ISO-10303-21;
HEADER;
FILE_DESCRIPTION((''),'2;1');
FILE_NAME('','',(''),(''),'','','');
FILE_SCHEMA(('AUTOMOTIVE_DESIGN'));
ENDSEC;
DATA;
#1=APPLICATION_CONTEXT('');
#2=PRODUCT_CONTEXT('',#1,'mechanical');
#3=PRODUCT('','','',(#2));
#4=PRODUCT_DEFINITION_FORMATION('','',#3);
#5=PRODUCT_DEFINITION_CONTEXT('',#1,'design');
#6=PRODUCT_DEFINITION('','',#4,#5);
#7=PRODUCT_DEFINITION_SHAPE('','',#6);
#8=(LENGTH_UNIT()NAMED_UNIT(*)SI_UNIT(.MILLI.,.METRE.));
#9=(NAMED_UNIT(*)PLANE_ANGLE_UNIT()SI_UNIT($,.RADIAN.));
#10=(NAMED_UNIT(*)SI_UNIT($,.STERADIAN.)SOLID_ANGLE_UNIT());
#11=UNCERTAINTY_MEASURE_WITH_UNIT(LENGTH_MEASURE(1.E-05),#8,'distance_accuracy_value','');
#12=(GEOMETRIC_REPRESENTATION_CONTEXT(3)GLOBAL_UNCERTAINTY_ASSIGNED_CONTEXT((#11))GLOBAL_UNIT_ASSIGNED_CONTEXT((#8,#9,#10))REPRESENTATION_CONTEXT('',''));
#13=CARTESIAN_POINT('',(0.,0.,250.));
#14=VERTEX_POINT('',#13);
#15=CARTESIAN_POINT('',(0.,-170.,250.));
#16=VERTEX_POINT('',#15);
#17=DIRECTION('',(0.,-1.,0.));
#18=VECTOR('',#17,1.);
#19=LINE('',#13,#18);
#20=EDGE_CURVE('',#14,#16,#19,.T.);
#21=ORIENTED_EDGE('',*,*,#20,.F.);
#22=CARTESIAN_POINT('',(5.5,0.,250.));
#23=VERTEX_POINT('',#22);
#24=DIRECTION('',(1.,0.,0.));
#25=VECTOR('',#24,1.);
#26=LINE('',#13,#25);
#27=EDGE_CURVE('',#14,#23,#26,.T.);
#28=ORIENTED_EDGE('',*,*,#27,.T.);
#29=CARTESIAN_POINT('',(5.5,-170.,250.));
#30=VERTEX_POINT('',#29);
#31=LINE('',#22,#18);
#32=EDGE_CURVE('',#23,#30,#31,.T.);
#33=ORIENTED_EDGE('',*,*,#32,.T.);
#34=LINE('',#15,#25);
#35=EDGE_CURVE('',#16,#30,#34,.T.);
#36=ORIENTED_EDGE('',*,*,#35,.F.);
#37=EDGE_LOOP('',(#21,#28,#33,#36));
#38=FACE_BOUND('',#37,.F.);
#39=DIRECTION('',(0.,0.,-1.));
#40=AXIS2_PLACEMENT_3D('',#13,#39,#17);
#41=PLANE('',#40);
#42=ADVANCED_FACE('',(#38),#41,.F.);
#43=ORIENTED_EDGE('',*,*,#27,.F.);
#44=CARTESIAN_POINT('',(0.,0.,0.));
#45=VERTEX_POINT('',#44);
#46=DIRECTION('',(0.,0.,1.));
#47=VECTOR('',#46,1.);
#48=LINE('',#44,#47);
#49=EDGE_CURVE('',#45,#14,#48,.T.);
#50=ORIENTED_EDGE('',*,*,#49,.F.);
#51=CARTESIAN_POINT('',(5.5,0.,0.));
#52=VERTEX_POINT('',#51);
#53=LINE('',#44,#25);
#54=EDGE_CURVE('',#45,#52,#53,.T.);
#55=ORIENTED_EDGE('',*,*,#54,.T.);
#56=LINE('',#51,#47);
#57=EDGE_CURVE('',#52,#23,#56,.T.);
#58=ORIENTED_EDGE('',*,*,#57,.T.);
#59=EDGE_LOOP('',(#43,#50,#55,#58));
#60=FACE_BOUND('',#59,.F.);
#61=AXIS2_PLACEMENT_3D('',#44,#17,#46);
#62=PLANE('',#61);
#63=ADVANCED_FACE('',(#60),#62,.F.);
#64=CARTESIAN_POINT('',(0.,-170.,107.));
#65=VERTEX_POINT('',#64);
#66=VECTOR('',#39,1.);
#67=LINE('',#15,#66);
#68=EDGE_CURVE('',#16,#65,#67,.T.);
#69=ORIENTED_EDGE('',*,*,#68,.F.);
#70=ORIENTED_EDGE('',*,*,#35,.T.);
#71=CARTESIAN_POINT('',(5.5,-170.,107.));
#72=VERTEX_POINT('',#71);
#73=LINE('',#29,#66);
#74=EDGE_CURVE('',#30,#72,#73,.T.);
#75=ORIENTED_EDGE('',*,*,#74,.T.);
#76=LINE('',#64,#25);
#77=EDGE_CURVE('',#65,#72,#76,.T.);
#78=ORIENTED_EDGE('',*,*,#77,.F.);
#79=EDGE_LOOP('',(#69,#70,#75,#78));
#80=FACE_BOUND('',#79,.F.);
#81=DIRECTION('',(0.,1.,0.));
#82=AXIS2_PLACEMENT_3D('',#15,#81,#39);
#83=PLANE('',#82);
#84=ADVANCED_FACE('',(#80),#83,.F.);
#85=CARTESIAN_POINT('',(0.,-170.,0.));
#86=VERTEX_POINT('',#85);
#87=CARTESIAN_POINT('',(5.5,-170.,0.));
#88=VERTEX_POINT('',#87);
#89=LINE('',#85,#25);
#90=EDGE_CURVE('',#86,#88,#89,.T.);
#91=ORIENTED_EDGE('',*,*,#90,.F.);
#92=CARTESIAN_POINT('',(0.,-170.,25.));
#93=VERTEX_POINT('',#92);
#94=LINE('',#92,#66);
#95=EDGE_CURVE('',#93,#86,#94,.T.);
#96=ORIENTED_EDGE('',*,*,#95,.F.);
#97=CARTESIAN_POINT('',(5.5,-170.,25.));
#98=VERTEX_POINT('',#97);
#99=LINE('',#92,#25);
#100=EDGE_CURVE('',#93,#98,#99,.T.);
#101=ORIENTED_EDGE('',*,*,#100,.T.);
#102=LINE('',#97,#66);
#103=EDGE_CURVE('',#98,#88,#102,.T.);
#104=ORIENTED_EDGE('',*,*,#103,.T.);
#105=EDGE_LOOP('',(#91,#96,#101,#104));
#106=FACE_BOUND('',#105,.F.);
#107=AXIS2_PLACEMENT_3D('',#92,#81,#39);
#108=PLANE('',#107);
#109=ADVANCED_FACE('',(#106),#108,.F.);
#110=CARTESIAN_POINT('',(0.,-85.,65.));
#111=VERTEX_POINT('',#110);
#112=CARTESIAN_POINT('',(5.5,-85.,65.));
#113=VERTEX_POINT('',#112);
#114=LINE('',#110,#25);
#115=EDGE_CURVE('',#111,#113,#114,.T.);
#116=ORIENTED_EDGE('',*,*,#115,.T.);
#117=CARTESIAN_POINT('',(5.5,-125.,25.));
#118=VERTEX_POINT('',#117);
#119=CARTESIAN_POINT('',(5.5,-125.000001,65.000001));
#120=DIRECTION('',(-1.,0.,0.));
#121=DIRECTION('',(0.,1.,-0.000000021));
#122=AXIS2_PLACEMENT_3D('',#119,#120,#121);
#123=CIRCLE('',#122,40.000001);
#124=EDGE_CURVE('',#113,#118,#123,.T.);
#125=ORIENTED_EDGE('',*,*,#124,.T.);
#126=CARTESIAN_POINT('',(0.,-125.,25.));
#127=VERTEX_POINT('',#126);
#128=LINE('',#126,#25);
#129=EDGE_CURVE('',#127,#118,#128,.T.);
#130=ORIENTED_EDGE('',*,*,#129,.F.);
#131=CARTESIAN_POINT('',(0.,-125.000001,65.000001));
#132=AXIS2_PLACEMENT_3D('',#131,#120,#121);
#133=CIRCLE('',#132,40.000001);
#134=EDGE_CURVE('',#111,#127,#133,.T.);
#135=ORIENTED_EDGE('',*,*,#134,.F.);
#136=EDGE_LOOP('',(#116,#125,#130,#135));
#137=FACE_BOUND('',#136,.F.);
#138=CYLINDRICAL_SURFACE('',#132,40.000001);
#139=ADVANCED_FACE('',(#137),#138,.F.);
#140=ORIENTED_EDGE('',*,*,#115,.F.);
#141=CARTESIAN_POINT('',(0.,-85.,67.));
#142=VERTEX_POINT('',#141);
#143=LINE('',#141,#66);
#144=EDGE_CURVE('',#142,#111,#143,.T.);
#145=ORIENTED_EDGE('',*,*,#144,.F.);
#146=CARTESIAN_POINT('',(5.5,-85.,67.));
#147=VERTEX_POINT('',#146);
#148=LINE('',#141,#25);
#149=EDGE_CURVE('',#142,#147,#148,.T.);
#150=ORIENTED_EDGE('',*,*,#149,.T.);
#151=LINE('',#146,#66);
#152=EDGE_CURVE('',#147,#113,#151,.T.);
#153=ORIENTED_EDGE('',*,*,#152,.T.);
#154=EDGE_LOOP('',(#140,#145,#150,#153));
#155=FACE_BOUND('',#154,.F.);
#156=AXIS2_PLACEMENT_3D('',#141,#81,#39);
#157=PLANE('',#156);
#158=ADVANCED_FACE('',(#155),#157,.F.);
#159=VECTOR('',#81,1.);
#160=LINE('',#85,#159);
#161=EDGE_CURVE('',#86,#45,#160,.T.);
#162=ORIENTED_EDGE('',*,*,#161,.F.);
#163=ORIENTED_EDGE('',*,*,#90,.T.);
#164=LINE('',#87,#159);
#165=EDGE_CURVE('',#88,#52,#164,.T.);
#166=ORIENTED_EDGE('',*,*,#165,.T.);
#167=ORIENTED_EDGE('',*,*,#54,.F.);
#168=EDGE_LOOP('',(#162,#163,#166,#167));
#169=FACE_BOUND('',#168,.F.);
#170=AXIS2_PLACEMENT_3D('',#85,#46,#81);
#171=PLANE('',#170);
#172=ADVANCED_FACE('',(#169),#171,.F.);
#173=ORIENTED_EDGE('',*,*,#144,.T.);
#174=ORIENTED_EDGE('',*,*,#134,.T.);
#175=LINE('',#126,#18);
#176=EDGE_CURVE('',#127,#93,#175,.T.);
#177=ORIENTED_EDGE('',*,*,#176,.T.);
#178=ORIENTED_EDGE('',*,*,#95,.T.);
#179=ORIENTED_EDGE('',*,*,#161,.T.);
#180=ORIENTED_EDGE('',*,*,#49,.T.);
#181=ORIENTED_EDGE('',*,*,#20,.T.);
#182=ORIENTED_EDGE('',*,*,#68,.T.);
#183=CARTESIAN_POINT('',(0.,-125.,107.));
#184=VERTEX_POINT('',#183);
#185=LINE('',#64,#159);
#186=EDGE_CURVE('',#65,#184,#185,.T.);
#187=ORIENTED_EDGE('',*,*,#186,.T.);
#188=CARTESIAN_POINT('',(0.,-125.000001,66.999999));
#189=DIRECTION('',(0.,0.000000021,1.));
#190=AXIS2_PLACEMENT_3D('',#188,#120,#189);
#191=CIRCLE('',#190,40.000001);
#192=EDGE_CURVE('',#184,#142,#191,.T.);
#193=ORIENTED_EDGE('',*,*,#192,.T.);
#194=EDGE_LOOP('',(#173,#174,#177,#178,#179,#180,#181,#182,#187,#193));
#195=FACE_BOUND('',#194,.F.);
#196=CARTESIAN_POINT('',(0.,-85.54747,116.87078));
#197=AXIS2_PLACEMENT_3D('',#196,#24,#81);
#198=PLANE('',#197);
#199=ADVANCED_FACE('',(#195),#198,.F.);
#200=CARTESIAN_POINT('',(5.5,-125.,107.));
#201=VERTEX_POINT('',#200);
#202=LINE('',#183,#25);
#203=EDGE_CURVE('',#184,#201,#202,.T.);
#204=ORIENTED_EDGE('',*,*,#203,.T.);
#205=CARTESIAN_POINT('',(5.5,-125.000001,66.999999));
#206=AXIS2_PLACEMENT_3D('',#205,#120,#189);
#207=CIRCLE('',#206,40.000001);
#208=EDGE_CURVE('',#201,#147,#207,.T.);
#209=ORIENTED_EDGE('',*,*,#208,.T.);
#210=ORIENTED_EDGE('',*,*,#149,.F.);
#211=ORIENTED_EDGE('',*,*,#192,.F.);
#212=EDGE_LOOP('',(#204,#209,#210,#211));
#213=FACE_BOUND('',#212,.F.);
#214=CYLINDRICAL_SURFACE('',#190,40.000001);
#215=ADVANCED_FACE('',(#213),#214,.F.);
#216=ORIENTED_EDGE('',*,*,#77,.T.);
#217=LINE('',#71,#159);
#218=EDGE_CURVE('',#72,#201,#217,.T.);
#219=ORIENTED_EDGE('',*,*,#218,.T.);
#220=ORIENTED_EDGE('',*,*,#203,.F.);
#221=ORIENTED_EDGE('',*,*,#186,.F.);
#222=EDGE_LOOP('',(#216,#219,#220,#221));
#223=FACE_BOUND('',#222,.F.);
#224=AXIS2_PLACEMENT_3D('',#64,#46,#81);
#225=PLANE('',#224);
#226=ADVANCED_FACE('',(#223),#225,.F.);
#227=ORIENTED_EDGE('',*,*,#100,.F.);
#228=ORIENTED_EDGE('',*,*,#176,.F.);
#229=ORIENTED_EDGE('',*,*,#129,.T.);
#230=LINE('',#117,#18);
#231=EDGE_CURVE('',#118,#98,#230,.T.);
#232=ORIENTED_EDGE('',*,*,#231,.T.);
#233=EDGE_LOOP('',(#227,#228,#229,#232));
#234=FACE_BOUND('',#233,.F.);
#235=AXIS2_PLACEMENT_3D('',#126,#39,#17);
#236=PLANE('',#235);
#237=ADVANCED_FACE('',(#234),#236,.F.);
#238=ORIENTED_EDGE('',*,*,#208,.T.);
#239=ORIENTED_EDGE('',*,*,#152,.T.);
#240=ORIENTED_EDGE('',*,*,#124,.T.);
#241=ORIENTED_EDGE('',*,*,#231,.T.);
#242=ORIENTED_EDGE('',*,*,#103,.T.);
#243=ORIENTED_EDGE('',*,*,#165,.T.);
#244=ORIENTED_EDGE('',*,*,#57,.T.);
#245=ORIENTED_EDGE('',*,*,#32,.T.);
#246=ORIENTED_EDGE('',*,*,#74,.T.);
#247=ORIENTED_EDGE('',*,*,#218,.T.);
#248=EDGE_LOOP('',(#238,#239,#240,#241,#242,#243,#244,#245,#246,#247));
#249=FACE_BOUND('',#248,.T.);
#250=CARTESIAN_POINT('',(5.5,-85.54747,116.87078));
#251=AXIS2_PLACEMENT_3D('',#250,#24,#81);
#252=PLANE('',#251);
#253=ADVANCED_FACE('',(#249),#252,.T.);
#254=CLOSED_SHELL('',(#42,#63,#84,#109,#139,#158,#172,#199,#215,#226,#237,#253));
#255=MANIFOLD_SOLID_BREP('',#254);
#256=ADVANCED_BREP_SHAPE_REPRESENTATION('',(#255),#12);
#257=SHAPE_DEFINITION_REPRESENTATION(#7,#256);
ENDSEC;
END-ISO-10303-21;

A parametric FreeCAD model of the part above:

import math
import FreeCAD as App
import Part
import Sketcher

V = App.Vector
Q = App.Units.Quantity

doc = App.newDocument("Part")
body = doc.addObject("PartDesign::Body", "Body")

sketch1 = doc.addObject("Sketcher::SketchObject", "Sketch")
body.addObject(sketch1)
sketch1.AttachmentSupport = (doc.YZ_Plane, [""])
sketch1.MapMode = "FlatFace"
sketch1.addGeometry([
    Part.LineSegment(V(-170, 0, 0), V(0, 0, 0)),
    Part.LineSegment(V(0, 0, 0), V(0, 250, 0)),
    Part.LineSegment(V(0, 250, 0), V(-170, 250, 0)),
    Part.LineSegment(V(-170, 250, 0), V(-170, 107, 0)),
    Part.LineSegment(V(-170, 107, 0), V(-125, 107, 0)),
    Part.ArcOfCircle(Part.Circle(V(-125.000001, 66.999999, 0), V(0, 0, 1), 40.000001), math.radians(0.000001), math.radians(89.999999)),
    Part.LineSegment(V(-85, 67, 0), V(-85, 65, 0)),
    Part.ArcOfCircle(Part.Circle(V(-125.000001, 65.000001, 0), V(0, 0, 1), 40.000001), math.radians(-89.999999), math.radians(-0.000001)),
    Part.LineSegment(V(-125, 25, 0), V(-170, 25, 0)),
    Part.LineSegment(V(-170, 25, 0), V(-170, 0, 0)),
], False)
sketch1.addConstraint([
    Sketcher.Constraint("Coincident", 0, 2, 1, 1),
    Sketcher.Constraint("Coincident", 1, 2, 2, 1),
    Sketcher.Constraint("Coincident", 2, 2, 3, 1),
    Sketcher.Constraint("Coincident", 3, 2, 4, 1),
    Sketcher.Constraint("Tangent", 4, 2, 5, 2),
    Sketcher.Constraint("Tangent", 5, 1, 6, 1),
    Sketcher.Constraint("Tangent", 6, 2, 7, 2),
    Sketcher.Constraint("Tangent", 7, 1, 8, 1),
    Sketcher.Constraint("Coincident", 8, 2, 9, 1),
    Sketcher.Constraint("Coincident", 9, 2, 0, 1),
    Sketcher.Constraint("Horizontal", 0),
    Sketcher.Constraint("Vertical", 1),
    Sketcher.Constraint("Horizontal", 2),
    Sketcher.Constraint("Vertical", 3),
    Sketcher.Constraint("Horizontal", 4),
    Sketcher.Constraint("Vertical", 6),
    Sketcher.Constraint("Horizontal", 8),
    Sketcher.Constraint("Vertical", 9),
    Sketcher.Constraint("Coincident", 0, 2, -1, 1),
    Sketcher.Constraint("Equal", 5, 7),
    Sketcher.Constraint("Vertical", 3, 2, 8, 2),
    Sketcher.Constraint("Radius", 5, Q("40.000001 mm")),
    Sketcher.Constraint("DistanceX", 0, 1, 0, 2, Q("170 mm")),
    Sketcher.Constraint("DistanceX", 4, 1, 4, 2, Q("45 mm")),
    Sketcher.Constraint("DistanceY", 1, 1, 1, 2, Q("250 mm")),
    Sketcher.Constraint("DistanceY", 3, 2, 3, 1, Q("143 mm")),
    Sketcher.Constraint("DistanceY", 6, 2, 6, 1, Q("2 mm")),
])
pad1 = doc.addObject("PartDesign::Pad", "Pad")
body.addObject(pad1)
pad1.Profile = sketch1
pad1.Length = 5.5

doc.recompute()
